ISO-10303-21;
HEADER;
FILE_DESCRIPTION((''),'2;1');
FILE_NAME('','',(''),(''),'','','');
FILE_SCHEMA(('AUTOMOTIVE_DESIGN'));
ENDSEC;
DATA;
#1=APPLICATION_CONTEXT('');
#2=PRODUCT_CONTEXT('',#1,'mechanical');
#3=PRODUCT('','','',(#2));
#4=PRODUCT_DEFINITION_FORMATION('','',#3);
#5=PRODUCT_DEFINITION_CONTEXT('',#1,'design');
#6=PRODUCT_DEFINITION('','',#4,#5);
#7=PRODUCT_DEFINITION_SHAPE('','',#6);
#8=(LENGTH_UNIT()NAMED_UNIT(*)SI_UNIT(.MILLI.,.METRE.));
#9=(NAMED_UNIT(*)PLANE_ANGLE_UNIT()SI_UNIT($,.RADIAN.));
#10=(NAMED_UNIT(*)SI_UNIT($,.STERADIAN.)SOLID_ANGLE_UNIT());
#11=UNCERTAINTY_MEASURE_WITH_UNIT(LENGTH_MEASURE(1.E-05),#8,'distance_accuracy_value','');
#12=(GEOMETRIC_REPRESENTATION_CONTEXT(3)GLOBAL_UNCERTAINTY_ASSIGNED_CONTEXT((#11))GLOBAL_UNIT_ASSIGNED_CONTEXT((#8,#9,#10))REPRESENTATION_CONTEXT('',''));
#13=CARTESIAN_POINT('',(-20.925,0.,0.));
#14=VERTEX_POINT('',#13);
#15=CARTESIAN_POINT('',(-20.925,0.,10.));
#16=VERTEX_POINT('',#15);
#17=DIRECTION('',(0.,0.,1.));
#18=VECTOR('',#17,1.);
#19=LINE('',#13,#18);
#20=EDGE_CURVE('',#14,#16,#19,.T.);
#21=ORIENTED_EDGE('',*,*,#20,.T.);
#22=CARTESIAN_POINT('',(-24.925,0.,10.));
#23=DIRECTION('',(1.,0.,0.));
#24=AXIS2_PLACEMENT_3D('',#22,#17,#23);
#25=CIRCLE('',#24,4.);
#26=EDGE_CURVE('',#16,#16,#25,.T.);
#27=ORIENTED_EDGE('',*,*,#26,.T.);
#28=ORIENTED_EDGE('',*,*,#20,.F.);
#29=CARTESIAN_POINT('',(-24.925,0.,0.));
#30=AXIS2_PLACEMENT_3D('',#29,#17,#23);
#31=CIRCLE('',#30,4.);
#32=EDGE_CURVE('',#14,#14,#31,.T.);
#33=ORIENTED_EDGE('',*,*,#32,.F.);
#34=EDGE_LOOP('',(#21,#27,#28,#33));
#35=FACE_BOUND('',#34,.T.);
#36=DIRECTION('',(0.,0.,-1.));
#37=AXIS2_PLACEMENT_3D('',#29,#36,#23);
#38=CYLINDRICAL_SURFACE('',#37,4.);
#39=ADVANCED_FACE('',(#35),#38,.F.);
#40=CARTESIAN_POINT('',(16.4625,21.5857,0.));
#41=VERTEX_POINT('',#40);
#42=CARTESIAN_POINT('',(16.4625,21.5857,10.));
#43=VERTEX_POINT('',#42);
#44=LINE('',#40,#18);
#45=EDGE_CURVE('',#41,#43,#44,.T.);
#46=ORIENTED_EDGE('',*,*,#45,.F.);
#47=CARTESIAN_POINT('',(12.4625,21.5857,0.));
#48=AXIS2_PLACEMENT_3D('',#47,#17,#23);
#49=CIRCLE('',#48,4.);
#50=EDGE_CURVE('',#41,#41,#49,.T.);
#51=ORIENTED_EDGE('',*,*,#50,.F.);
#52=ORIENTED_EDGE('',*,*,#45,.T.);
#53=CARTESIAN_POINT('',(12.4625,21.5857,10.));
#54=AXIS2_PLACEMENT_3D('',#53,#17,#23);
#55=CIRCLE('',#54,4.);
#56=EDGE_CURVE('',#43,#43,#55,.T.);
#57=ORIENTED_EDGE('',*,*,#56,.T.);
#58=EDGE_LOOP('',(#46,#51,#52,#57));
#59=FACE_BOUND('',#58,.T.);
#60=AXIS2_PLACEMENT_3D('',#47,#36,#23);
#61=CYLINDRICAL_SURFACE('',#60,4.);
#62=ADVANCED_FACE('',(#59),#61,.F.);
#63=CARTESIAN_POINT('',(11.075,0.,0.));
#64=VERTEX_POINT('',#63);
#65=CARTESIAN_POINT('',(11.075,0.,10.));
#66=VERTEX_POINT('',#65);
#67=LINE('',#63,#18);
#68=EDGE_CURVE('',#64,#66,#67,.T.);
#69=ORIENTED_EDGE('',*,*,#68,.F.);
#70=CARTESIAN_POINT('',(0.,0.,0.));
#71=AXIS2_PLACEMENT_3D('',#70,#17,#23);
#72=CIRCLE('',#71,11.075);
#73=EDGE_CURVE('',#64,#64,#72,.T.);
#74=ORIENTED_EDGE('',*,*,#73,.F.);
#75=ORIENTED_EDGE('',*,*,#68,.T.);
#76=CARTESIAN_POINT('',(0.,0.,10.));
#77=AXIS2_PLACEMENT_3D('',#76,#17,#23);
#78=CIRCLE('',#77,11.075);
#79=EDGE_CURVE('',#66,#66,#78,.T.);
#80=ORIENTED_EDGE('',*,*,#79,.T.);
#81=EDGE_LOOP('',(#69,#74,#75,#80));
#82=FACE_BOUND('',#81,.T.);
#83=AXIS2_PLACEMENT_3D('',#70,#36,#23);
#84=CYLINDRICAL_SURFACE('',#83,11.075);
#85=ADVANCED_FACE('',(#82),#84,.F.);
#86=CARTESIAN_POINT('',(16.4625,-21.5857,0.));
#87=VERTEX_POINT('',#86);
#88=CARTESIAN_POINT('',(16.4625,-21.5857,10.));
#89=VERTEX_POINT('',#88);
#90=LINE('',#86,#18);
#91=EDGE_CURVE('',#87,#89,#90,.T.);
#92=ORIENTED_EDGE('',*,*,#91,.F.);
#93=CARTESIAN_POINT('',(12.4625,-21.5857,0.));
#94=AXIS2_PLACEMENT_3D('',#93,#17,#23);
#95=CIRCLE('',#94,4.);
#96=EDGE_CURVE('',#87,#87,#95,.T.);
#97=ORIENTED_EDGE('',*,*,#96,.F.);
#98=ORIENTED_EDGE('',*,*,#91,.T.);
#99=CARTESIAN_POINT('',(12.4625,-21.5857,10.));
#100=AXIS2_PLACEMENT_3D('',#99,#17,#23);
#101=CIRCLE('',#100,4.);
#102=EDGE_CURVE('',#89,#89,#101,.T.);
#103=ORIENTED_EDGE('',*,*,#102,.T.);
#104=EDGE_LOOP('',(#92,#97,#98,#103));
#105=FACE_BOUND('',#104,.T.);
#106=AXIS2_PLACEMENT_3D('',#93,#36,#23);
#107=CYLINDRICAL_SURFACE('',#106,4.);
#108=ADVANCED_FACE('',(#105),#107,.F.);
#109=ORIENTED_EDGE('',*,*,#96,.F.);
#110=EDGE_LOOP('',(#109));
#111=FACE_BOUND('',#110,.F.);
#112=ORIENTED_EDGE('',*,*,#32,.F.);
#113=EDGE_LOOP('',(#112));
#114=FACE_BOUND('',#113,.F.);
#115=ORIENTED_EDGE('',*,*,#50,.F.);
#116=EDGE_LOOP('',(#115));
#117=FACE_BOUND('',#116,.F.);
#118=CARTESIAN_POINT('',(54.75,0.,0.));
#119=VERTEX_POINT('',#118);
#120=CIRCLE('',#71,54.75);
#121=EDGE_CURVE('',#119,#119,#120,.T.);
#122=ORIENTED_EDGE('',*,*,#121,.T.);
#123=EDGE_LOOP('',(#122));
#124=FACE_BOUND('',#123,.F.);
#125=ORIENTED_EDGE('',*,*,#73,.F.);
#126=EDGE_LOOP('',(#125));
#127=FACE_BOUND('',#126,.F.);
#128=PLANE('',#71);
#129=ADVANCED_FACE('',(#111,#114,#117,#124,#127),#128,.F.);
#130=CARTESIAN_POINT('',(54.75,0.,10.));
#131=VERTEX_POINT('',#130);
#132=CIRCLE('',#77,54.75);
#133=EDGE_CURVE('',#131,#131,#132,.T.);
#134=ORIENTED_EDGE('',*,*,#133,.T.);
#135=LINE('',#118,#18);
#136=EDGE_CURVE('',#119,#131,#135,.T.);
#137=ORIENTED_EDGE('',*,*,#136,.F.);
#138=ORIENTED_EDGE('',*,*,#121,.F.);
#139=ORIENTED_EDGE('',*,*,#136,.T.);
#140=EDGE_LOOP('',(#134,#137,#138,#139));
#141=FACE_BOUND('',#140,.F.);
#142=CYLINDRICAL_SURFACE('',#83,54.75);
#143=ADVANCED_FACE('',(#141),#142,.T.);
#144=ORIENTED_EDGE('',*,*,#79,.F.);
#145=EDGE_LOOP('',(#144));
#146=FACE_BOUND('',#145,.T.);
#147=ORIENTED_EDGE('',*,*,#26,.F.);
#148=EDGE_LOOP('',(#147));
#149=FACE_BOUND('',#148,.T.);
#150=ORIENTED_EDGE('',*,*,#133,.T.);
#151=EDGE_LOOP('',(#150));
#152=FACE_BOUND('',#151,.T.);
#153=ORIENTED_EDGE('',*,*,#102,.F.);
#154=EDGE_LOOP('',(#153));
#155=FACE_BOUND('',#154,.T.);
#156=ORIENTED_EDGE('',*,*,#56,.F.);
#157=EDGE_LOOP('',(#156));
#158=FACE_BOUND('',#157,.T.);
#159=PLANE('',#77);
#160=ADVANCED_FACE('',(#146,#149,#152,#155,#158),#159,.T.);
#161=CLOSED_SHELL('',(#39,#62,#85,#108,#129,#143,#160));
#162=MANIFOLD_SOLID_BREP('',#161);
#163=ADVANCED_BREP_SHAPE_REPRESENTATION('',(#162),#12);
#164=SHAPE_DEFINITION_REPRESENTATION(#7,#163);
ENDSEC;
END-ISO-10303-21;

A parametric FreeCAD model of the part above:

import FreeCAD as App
import Part
import Sketcher
from FreeCAD import Vector
Q = App.Units.Quantity

doc = App.newDocument("Part")
body = doc.addObject("PartDesign::Body", "Body")

sketch1 = doc.addObject("Sketcher::SketchObject", "Sketch")
body.addObject(sketch1)
sketch1.AttachmentSupport = (doc.XY_Plane, [""])
sketch1.MapMode = "FlatFace"
sketch1.addGeometry(Part.Circle(Vector(0, 0, 0), Vector(0, 0, 1), 54.8), False)
sketch1.addGeometry(Part.Circle(Vector(12.5, -21.6, 0), Vector(0, 0, 1), 4), False)
sketch1.addGeometry(Part.Circle(Vector(-24.9, 0, 0), Vector(0, 0, 1), 4), False)
sketch1.addGeometry(Part.Circle(Vector(0, 0, 0), Vector(0, 0, 1), 11.1), False)
sketch1.addGeometry(Part.Circle(Vector(12.5, 21.6, 0), Vector(0, 0, 1), 4), False)
sketch1.addConstraint(Sketcher.Constraint("Coincident", 0, 3, -1, 1))
sketch1.addConstraint(Sketcher.Constraint("Coincident", 3, 3, -1, 1))
sketch1.addConstraint(Sketcher.Constraint("Equal", 1, 2))
sketch1.addConstraint(Sketcher.Constraint("Equal", 2, 4))
sketch1.addConstraint(Sketcher.Constraint("Symmetric", 1, 3, 4, 3, -1))
sketch1.addConstraint(Sketcher.Constraint("PointOnObject", 2, 3, -1))
sketch1.addConstraint(Sketcher.Constraint("Diameter", 1, Q("8 mm")))
sketch1.addConstraint(Sketcher.Constraint("Diameter", 0, Q("109.5 mm")))
sketch1.addConstraint(Sketcher.Constraint("Diameter", 3, Q("22.15 mm")))
sketch1.addConstraint(Sketcher.Constraint("DistanceX", 2, 3, -1, 1, Q("24.925 mm")))
sketch1.addConstraint(Sketcher.Constraint("DistanceX", -1, 1, 1, 3, Q("12.4625 mm")))
sketch1.addConstraint(Sketcher.Constraint("DistanceY", 1, 3, -1, 1, Q("21.5857 mm")))
pad1 = doc.addObject("PartDesign::Pad", "Pad")
body.addObject(pad1)
pad1.Profile = sketch1
pad1.Length = 10

doc.recompute()
